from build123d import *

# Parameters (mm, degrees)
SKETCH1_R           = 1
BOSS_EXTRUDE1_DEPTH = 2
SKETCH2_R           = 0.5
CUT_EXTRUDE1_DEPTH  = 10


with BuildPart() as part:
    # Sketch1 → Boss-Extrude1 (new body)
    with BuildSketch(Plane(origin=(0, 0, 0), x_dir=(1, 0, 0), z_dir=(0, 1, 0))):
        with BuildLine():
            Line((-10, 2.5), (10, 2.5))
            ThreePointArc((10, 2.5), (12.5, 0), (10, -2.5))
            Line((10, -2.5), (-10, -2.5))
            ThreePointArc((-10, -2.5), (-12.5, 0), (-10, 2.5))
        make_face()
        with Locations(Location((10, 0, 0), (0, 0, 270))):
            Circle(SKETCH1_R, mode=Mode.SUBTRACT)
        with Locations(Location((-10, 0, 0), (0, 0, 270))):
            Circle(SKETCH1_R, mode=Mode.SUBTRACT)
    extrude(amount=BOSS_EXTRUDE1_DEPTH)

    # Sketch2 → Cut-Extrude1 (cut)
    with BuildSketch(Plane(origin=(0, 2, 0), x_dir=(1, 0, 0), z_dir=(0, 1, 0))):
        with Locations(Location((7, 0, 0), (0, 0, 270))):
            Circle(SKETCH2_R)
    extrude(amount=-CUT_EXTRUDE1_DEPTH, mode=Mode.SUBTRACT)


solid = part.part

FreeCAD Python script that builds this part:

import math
import FreeCAD as App
import Part
import Sketcher
Q = App.Units.Quantity

doc = App.newDocument("Part")
params = doc.addObject("Spreadsheet::Sheet", "Params")
for row, (alias, value) in enumerate([
    ("sketch1_diameter", "2 mm"),
    ("sketch1_radius", "2.5 mm"),
    ("sketch1_width", "20 mm"),
    ("pad1_length", "2 mm"),
    ("sketch2_diameter", "1 mm"),
    ("pocket1_length", "10 mm"),
], start=1):
    params.set(f"A{row}", alias)
    params.set(f"B{row}", "=" + value)
    params.setAlias(f"B{row}", alias)

body = doc.addObject("PartDesign::Body", "Body")

sketch1 = doc.addObject("Sketcher::SketchObject", "Sketch")
body.addObject(sketch1)
sketch1.AttachmentSupport = (doc.XZ_Plane, [""])
sketch1.MapMode = "FlatFace"
sketch1.addGeometry([
    Part.LineSegment(App.Vector(10, -2.5, 0), App.Vector(-10, -2.5, 0)),
    Part.ArcOfCircle(Part.Circle(App.Vector(-10, 0, 0), App.Vector(0, 0, 1), 2.5), math.radians(90), math.radians(270)),
    Part.LineSegment(App.Vector(-10, 2.5, 0), App.Vector(10, 2.5, 0)),
    Part.ArcOfCircle(Part.Circle(App.Vector(10, 0, 0), App.Vector(0, 0, 1), 2.5), math.radians(-90), math.radians(90)),
    Part.Circle(App.Vector(10, 0, 0), App.Vector(0, 0, 1), 1),
    Part.Circle(App.Vector(-10, 0, 0), App.Vector(0, 0, 1), 1),
], False)
sketch1.addConstraint([
    Sketcher.Constraint("Tangent", 0, 2, 1, 2),
    Sketcher.Constraint("Tangent", 1, 1, 2, 1),
    Sketcher.Constraint("Tangent", 2, 2, 3, 2),
    Sketcher.Constraint("Tangent", 3, 1, 0, 1),
    Sketcher.Constraint("Horizontal", 0),
    Sketcher.Constraint("Horizontal", 2),
    Sketcher.Constraint("Coincident", 4, 3, 3, 3),
    Sketcher.Constraint("Coincident", 5, 3, 1, 3),
    Sketcher.Constraint("Equal", 4, 5),
    Sketcher.Constraint("Symmetric", 1, 3, 3, 3, -1, 1),
    Sketcher.Constraint("Diameter", 4, Q("2 mm")),
    Sketcher.Constraint("Radius", 1, Q("2.5 mm")),
    Sketcher.Constraint("DistanceX", 0, 2, 0, 1, Q("20 mm")),
])
sketch1.setExpression("Constraints[10]", "Params.sketch1_diameter")
sketch1.setExpression("Constraints[11]", "Params.sketch1_radius")
sketch1.setExpression("Constraints[12]", "Params.sketch1_width")
pad1 = doc.addObject("PartDesign::Pad", "Pad")
body.addObject(pad1)
pad1.Profile = sketch1
pad1.setExpression("Length", "Params.pad1_length")
pad1.Reversed = True

sketch2 = doc.addObject("Sketcher::SketchObject", "Sketch001")
body.addObject(sketch2)
sketch2.AttachmentSupport = (doc.XZ_Plane, [""])
sketch2.MapMode = "FlatFace"
sketch2.AttachmentOffset = App.Placement(App.Vector(0, 0, -2), App.Rotation())
sketch2.addGeometry(Part.Circle(App.Vector(7, 0, 0), App.Vector(0, 0, 1), 0.5), False)
sketch2.addConstraint([
    Sketcher.Constraint("PointOnObject", 0, 3, -1),
    Sketcher.Constraint("Diameter", 0, Q("1 mm")),
    Sketcher.Constraint("DistanceX", -1, 1, 0, 3, Q("7 mm")),
])
sketch2.setExpression("Constraints[1]", "Params.sketch2_diameter")
pocket1 = doc.addObject("PartDesign::Pocket", "Pocket")
body.addObject(pocket1)
pocket1.Profile = sketch2
pocket1.setExpression("Length", "Params.pocket1_length")
pocket1.Reversed = True

doc.recompute()
